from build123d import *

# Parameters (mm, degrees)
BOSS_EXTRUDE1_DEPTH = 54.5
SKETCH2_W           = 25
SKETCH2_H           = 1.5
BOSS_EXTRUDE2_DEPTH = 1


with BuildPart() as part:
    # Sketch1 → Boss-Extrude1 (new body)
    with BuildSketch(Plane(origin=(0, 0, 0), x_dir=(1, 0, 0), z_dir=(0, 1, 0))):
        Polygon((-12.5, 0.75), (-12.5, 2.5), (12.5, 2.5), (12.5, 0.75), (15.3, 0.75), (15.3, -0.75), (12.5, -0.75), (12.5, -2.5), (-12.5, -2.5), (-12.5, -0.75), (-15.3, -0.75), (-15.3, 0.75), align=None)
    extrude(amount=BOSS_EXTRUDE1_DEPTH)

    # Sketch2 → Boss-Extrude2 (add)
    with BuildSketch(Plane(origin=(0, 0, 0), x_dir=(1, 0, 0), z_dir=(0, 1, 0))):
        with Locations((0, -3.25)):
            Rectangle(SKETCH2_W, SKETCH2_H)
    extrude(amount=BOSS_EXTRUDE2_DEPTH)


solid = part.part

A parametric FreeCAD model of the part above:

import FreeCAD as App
import Part
import Sketcher
from FreeCAD import Vector
Q = App.Units.Quantity


def add_polygon(sketch, points):
    """Adds a closed chain of lines whose ends are joined by coincident constraints."""
    first, n = sketch.GeometryCount, len(points)
    for a, b in zip(points, points[1:] + points[:1]):
        sketch.addGeometry(Part.LineSegment(App.Vector(*a, 0), App.Vector(*b, 0)), False)
    for i in range(n):
        sketch.addConstraint(Sketcher.Constraint("Coincident", first + i, 2, first + (i + 1) % n, 1))

doc = App.newDocument("Part")
params = doc.addObject("Spreadsheet::Sheet", "Params")
for row, (alias, value) in enumerate([
    ("sketch1_width", "25 mm"),
    ("sketch1_width2", "2.8 mm"),
    ("sketch1_height", "1.5 mm"),
    ("pad1_length", "54.5 mm"),
    ("sketch2_width", "25 mm"),
    ("sketch2_height", "1.5 mm"),
    ("pad2_length", "1 mm"),
], start=1):
    params.set(f"A{row}", alias)
    params.set(f"B{row}", "=" + value)
    params.setAlias(f"B{row}", alias)

body = doc.addObject("PartDesign::Body", "Body")

# Sketch on XZ plane
sketch1 = doc.addObject("Sketcher::SketchObject", "Sketch")
body.addObject(sketch1)
sketch1.AttachmentSupport = (doc.XZ_Plane, [""])
sketch1.MapMode = "FlatFace"
add_polygon(sketch1, [(-12.5, -2.5), (-12.5, -0.8), (-15.3, -0.8), (-15.3, 0.8), (-12.5, 0.8), (-12.5, 2.5), (12.5, 2.5), (12.5, 0.8), (15.3, 0.8), (15.3, -0.8), (12.5, -0.8), (12.5, -2.5)])  # lines 0-11
sketch1.addConstraint([
    Sketcher.Constraint("Vertical", 0),
    Sketcher.Constraint("Horizontal", 1),
    Sketcher.Constraint("Vertical", 2),
    Sketcher.Constraint("Horizontal", 3),
    Sketcher.Constraint("Vertical", 4),
    Sketcher.Constraint("Horizontal", 5),
    Sketcher.Constraint("Vertical", 6),
    Sketcher.Constraint("Horizontal", 7),
    Sketcher.Constraint("Vertical", 8),
    Sketcher.Constraint("Horizontal", 9),
    Sketcher.Constraint("Vertical", 10),
    Sketcher.Constraint("Horizontal", 11),
    Sketcher.Constraint("Symmetric", 0, 2, 6, 2, -1, 1),
    Sketcher.Constraint("Symmetric", 2, 2, 8, 2, -1, 1),
    Sketcher.Constraint("Symmetric", 4, 2, 10, 2, -1, 1),
    Sketcher.Constraint("Symmetric", 3, 2, 6, 2, -2),
    Sketcher.Constraint("DistanceX", 5, 1, 5, 2, Q("25 mm")),
    Sketcher.Constraint("DistanceX", 1, 2, 1, 1, Q("2.8 mm")),
    Sketcher.Constraint("DistanceY", 2, 1, 2, 2, Q("1.5 mm")),
    Sketcher.Constraint("DistanceY", 10, 2, 5, 2, Q("5 mm")),
])
sketch1.setExpression("Constraints[28]", "Params.sketch1_width")
sketch1.setExpression("Constraints[29]", "Params.sketch1_width2")
sketch1.setExpression("Constraints[30]", "Params.sketch1_height")
pad1 = doc.addObject("PartDesign::Pad", "Pad")
body.addObject(pad1)
pad1.Profile = sketch1
pad1.setExpression("Length", "Params.pad1_length")
pad1.Reversed = True

# Sketch on XZ plane
sketch2 = doc.addObject("Sketcher::SketchObject", "Sketch001")
body.addObject(sketch2)
sketch2.AttachmentSupport = (doc.XZ_Plane, [""])
sketch2.MapMode = "FlatFace"
add_polygon(sketch2, [(-12.5, 2.5), (-12.5, 4), (12.5, 4), (12.5, 2.5)])  # lines 0-3
sketch2.addConstraint([
    Sketcher.Constraint("Vertical", 0),
    Sketcher.Constraint("Horizontal", 1),
    Sketcher.Constraint("Vertical", 2),
    Sketcher.Constraint("Horizontal", 3),
    Sketcher.Constraint("DistanceX", 1, 1, 1, 2, Q("25 mm")),
    Sketcher.Constraint("DistanceY", 0, 1, 0, 2, Q("1.5 mm")),
    Sketcher.Constraint("DistanceY", -1, 1, 0, 2, Q("4 mm")),
    Sketcher.Constraint("DistanceX", 0, 2, -1, 1, Q("12.5 mm")),
])
sketch2.setExpression("Constraints[8]", "Params.sketch2_width")
sketch2.setExpression("Constraints[9]", "Params.sketch2_height")
pad2 = doc.addObject("PartDesign::Pad", "Pad001")
body.addObject(pad2)
pad2.Profile = sketch2
pad2.setExpression("Length", "Params.pad2_length")
pad2.Reversed = True

doc.recompute()
